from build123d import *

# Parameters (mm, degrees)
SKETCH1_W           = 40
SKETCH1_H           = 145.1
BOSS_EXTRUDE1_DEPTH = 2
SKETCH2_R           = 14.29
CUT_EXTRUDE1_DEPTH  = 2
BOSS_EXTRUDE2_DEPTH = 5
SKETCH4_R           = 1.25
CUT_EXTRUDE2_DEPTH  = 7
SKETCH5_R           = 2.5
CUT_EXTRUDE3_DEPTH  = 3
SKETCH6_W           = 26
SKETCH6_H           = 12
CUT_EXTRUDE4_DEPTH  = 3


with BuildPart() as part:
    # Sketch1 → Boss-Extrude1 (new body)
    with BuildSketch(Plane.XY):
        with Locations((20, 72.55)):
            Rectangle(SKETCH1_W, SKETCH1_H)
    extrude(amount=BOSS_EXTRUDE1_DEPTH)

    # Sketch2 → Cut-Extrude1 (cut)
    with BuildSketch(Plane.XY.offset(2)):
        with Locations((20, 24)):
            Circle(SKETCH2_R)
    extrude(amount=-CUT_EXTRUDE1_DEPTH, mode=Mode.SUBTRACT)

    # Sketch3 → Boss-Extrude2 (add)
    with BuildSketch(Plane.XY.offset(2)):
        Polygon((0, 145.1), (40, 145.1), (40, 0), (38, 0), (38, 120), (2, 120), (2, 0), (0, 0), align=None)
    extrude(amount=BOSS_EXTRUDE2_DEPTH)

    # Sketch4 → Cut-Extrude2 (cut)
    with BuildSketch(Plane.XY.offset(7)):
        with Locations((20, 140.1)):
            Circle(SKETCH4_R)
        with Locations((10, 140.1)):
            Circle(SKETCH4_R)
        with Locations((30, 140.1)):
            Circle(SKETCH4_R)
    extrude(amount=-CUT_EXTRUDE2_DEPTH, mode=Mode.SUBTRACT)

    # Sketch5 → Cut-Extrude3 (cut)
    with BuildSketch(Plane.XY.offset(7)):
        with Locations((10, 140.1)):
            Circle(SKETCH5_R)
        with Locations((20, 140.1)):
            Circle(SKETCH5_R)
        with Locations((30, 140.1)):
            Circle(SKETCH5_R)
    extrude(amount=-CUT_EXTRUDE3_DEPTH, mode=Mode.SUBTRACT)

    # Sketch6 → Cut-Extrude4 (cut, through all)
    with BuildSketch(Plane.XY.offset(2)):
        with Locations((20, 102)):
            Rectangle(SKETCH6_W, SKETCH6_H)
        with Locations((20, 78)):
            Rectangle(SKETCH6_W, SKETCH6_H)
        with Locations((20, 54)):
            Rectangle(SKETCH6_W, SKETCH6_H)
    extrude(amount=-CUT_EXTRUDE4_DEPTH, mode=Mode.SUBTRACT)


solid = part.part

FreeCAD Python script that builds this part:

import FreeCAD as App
import Part
import Sketcher

V = App.Vector
Q = App.Units.Quantity

doc = App.newDocument("Part")
body = doc.addObject("PartDesign::Body", "Body")

# Sketch on XY plane
sketch1 = body.newObject("Sketcher::SketchObject", "Sketch")
sketch1.AttachmentSupport = (doc.getObject("XY_Plane"), [""])
sketch1.MapMode = "FlatFace"
sketch1.addGeometry([
    Part.LineSegment(V(0, 145.1, 0), V(0, 0, 0)),
    Part.LineSegment(V(0, 0, 0), V(40, 0, 0)),
    Part.LineSegment(V(40, 0, 0), V(40, 145.1, 0)),
    Part.LineSegment(V(40, 145.1, 0), V(0, 145.1, 0)),
], False)
sketch1.addConstraint([
    Sketcher.Constraint("Coincident", 0, 2, 1, 1),
    Sketcher.Constraint("Coincident", 1, 2, 2, 1),
    Sketcher.Constraint("Coincident", 2, 2, 3, 1),
    Sketcher.Constraint("Coincident", 3, 2, 0, 1),
    Sketcher.Constraint("Vertical", 0),
    Sketcher.Constraint("Horizontal", 1),
    Sketcher.Constraint("Vertical", 2),
    Sketcher.Constraint("Horizontal", 3),
    Sketcher.Constraint("Coincident", 0, 2, -1, 1),
    Sketcher.Constraint("DistanceX", 1, 1, 1, 2, Q("40 mm")),
    Sketcher.Constraint("DistanceY", 0, 2, 0, 1, Q("145.1 mm")),
])
pad1 = body.newObject("PartDesign::Pad", "Pad")
pad1.Profile = sketch1
pad1.Length = 2

# Sketch on XY plane
sketch2 = body.newObject("Sketcher::SketchObject", "Sketch001")
sketch2.AttachmentSupport = (doc.getObject("XY_Plane"), [""])
sketch2.MapMode = "FlatFace"
sketch2.AttachmentOffset = App.Placement(V(0, 0, 2), App.Rotation())
sketch2.addGeometry(Part.Circle(V(20, 24, 0), V(0, 0, 1), 14.29), False)
sketch2.addConstraint([
    Sketcher.Constraint("Diameter", 0, Q("28.58 mm")),
    Sketcher.Constraint("DistanceX", -1, 1, 0, 3, Q("20 mm")),
    Sketcher.Constraint("DistanceY", -1, 1, 0, 3, Q("24 mm")),
])
pocket1 = body.newObject("PartDesign::Pocket", "Pocket")
pocket1.Profile = sketch2
pocket1.Length = 2

# Sketch on XY plane
sketch3 = body.newObject("Sketcher::SketchObject", "Sketch002")
sketch3.AttachmentSupport = (doc.getObject("XY_Plane"), [""])
sketch3.MapMode = "FlatFace"
sketch3.AttachmentOffset = App.Placement(V(0, 0, 2), App.Rotation())
sketch3.addGeometry([
    Part.LineSegment(V(40, 145.1, 0), V(0, 145.1, 0)),  # 0
    Part.LineSegment(V(0, 145.1, 0), V(0, 0, 0)),  # 1
    Part.LineSegment(V(0, 0, 0), V(2, 0, 0)),  # 2
    Part.LineSegment(V(2, 0, 0), V(2, 120, 0)),  # 3
    Part.LineSegment(V(2, 120, 0), V(38, 120, 0)),  # 4
    Part.LineSegment(V(38, 120, 0), V(38, 0, 0)),  # 5
    Part.LineSegment(V(38, 0, 0), V(40, 0, 0)),  # 6
    Part.LineSegment(V(40, 0, 0), V(40, 145.1, 0)),  # 7
], False)
sketch3.addConstraint([
    Sketcher.Constraint("Coincident", 0, 2, 1, 1),
    Sketcher.Constraint("Coincident", 1, 2, 2, 1),
    Sketcher.Constraint("Coincident", 2, 2, 3, 1),
    Sketcher.Constraint("Coincident", 3, 2, 4, 1),
    Sketcher.Constraint("Coincident", 4, 2, 5, 1),
    Sketcher.Constraint("Coincident", 5, 2, 6, 1),
    Sketcher.Constraint("Coincident", 6, 2, 7, 1),
    Sketcher.Constraint("Coincident", 7, 2, 0, 1),
    Sketcher.Constraint("Horizontal", 0),
    Sketcher.Constraint("Vertical", 1),
    Sketcher.Constraint("Horizontal", 2),
    Sketcher.Constraint("Vertical", 3),
    Sketcher.Constraint("Horizontal", 4),
    Sketcher.Constraint("Vertical", 5),
    Sketcher.Constraint("Horizontal", 6),
    Sketcher.Constraint("Vertical", 7),
    Sketcher.Constraint("Coincident", 1, 2, -1, 1),
    Sketcher.Constraint("PointOnObject", 5, 2, -1),
    Sketcher.Constraint("Equal", 2, 6),
    Sketcher.Constraint("DistanceX", 0, 2, 0, 1, Q("40 mm")),
    Sketcher.Constraint("DistanceX", 2, 1, 2, 2, Q("2 mm")),
    Sketcher.Constraint("DistanceY", 3, 1, 3, 2, Q("120 mm")),
    Sketcher.Constraint("DistanceY", 1, 2, 1, 1, Q("145.1 mm")),
])
pad2 = body.newObject("PartDesign::Pad", "Pad001")
pad2.Profile = sketch3
pad2.Length = 5

# Sketch on XY plane
sketch4 = body.newObject("Sketcher::SketchObject", "Sketch003")
sketch4.AttachmentSupport = (doc.getObject("XY_Plane"), [""])
sketch4.MapMode = "FlatFace"
sketch4.AttachmentOffset = App.Placement(V(0, 0, 7), App.Rotation())
sketch4.addGeometry([
    Part.Circle(V(20, 140.1, 0), V(0, 0, 1), 1.25),
    Part.Circle(V(10, 140.1, 0), V(0, 0, 1), 1.25),
    Part.Circle(V(30, 140.1, 0), V(0, 0, 1), 1.25),
], False)
sketch4.addConstraint([
    Sketcher.Constraint("Equal", 0, 1),
    Sketcher.Constraint("Equal", 1, 2),
    Sketcher.Constraint("Horizontal", 0, 3, 1, 3),
    Sketcher.Constraint("Horizontal", 1, 3, 2, 3),
    Sketcher.Constraint("Diameter", 0, Q("2.5 mm")),
    Sketcher.Constraint("DistanceX", -1, 1, 0, 3, Q("20 mm")),
    Sketcher.Constraint("DistanceX", -1, 1, 1, 3, Q("10 mm")),
    Sketcher.Constraint("DistanceX", -1, 1, 2, 3, Q("30 mm")),
    Sketcher.Constraint("DistanceY", -1, 1, 0, 3, Q("140.1 mm")),
])
pocket2 = body.newObject("PartDesign::Pocket", "Pocket001")
pocket2.Profile = sketch4
pocket2.Length = 7

# Sketch on XY plane
sketch5 = body.newObject("Sketcher::SketchObject", "Sketch004")
sketch5.AttachmentSupport = (doc.getObject("XY_Plane"), [""])
sketch5.MapMode = "FlatFace"
sketch5.AttachmentOffset = App.Placement(V(0, 0, 7), App.Rotation())
sketch5.addGeometry([
    Part.Circle(V(10, 140.1, 0), V(0, 0, 1), 2.5),
    Part.Circle(V(20, 140.1, 0), V(0, 0, 1), 2.5),
    Part.Circle(V(30, 140.1, 0), V(0, 0, 1), 2.5),
], False)
sketch5.addConstraint([
    Sketcher.Constraint("Equal", 0, 1),
    Sketcher.Constraint("Equal", 1, 2),
    Sketcher.Constraint("Horizontal", 0, 3, 1, 3),
    Sketcher.Constraint("Horizontal", 1, 3, 2, 3),
    Sketcher.Constraint("Diameter", 0, Q("5 mm")),
    Sketcher.Constraint("DistanceX", -1, 1, 0, 3, Q("10 mm")),
    Sketcher.Constraint("DistanceX", -1, 1, 1, 3, Q("20 mm")),
    Sketcher.Constraint("DistanceX", -1, 1, 2, 3, Q("30 mm")),
    Sketcher.Constraint("DistanceY", -1, 1, 0, 3, Q("140.1 mm")),
])
pocket3 = body.newObject("PartDesign::Pocket", "Pocket002")
pocket3.Profile = sketch5
pocket3.Length = 3

# Sketch on XY plane
sketch6 = body.newObject("Sketcher::SketchObject", "Sketch005")
sketch6.AttachmentSupport = (doc.getObject("XY_Plane"), [""])
sketch6.MapMode = "FlatFace"
sketch6.AttachmentOffset = App.Placement(V(0, 0, 2), App.Rotation())
sketch6.addGeometry([
    Part.LineSegment(V(7, 108, 0), V(7, 96, 0)),  # 0
    Part.LineSegment(V(7, 96, 0), V(33, 96, 0)),  # 1
    Part.LineSegment(V(33, 96, 0), V(33, 108, 0)),  # 2
    Part.LineSegment(V(33, 108, 0), V(7, 108, 0)),  # 3
    Part.LineSegment(V(7, 84, 0), V(7, 72, 0)),  # 4
    Part.LineSegment(V(7, 72, 0), V(33, 72, 0)),  # 5
    Part.LineSegment(V(33, 72, 0), V(33, 84, 0)),  # 6
    Part.LineSegment(V(33, 84, 0), V(7, 84, 0)),  # 7
    Part.LineSegment(V(7, 60, 0), V(7, 48, 0)),  # 8
    Part.LineSegment(V(7, 48, 0), V(33, 48, 0)),  # 9
    Part.LineSegment(V(33, 48, 0), V(33, 60, 0)),  # 10
    Part.LineSegment(V(33, 60, 0), V(7, 60, 0)),  # 11
], False)
sketch6.addConstraint([
    Sketcher.Constraint("Coincident", 0, 2, 1, 1),
    Sketcher.Constraint("Coincident", 1, 2, 2, 1),
    Sketcher.Constraint("Coincident", 2, 2, 3, 1),
    Sketcher.Constraint("Coincident", 3, 2, 0, 1),
    Sketcher.Constraint("Coincident", 4, 2, 5, 1),
    Sketcher.Constraint("Coincident", 5, 2, 6, 1),
    Sketcher.Constraint("Coincident", 6, 2, 7, 1),
    Sketcher.Constraint("Coincident", 7, 2, 4, 1),
    Sketcher.Constraint("Coincident", 8, 2, 9, 1),
    Sketcher.Constraint("Coincident", 9, 2, 10, 1),
    Sketcher.Constraint("Coincident", 10, 2, 11, 1),
    Sketcher.Constraint("Coincident", 11, 2, 8, 1),
    Sketcher.Constraint("Vertical", 0),
    Sketcher.Constraint("Horizontal", 1),
    Sketcher.Constraint("Vertical", 2),
    Sketcher.Constraint("Horizontal", 3),
    Sketcher.Constraint("Vertical", 4),
    Sketcher.Constraint("Horizontal", 5),
    Sketcher.Constraint("Vertical", 6),
    Sketcher.Constraint("Horizontal", 7),
    Sketcher.Constraint("Vertical", 8),
    Sketcher.Constraint("Horizontal", 9),
    Sketcher.Constraint("Vertical", 10),
    Sketcher.Constraint("Horizontal", 11),
    Sketcher.Constraint("Vertical", 3, 2, 4, 2),
    Sketcher.Constraint("Vertical", 2, 2, 5, 2),
    Sketcher.Constraint("Vertical", 7, 2, 8, 2),
    Sketcher.Constraint("Vertical", 6, 2, 9, 2),
    Sketcher.Constraint("Equal", 2, 4),
    Sketcher.Constraint("Equal", 6, 8),
    Sketcher.Constraint("DistanceX", 1, 1, 1, 2, Q("26 mm")),
    Sketcher.Constraint("DistanceY", 0, 2, 0, 1, Q("12 mm")),
    Sketcher.Constraint("DistanceX", -1, 1, 0, 2, Q("7 mm")),
    Sketcher.Constraint("DistanceY", -1, 1, 0, 2, Q("96 mm")),
    Sketcher.Constraint("DistanceY", -1, 1, 4, 2, Q("72 mm")),
    Sketcher.Constraint("DistanceY", -1, 1, 8, 2, Q("48 mm")),
])
pocket4 = body.newObject("PartDesign::Pocket", "Pocket003")
pocket4.Profile = sketch6
pocket4.Type = "ThroughAll"

doc.recompute()
